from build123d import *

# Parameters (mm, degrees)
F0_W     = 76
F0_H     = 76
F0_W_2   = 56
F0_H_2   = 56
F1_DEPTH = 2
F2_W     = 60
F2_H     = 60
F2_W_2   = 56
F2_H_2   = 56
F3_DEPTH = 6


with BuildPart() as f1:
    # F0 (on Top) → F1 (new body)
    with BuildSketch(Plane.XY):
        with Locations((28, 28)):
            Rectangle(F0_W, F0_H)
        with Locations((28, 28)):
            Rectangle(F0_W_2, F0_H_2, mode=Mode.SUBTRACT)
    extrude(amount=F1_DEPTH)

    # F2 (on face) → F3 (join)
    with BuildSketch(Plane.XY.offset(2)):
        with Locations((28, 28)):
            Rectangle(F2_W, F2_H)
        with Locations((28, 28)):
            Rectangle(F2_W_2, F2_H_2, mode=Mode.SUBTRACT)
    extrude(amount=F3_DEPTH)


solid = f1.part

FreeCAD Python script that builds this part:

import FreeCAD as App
import Part
import Sketcher

doc = App.newDocument("Part")
body = doc.addObject("PartDesign::Body", "Body")

sketch1 = body.newObject("Sketcher::SketchObject", "Sketch")
sketch1.AttachmentSupport = (doc.getObject("XY_Plane"), [""])
sketch1.MapMode = "FlatFace"
sketch1.addGeometry([
    Part.LineSegment(App.Vector(-10, 66, 0), App.Vector(-10, -10, 0)),
    Part.LineSegment(App.Vector(-10, -10, 0), App.Vector(66, -10, 0)),
    Part.LineSegment(App.Vector(66, -10, 0), App.Vector(66, 66, 0)),
    Part.LineSegment(App.Vector(66, 66, 0), App.Vector(-10, 66, 0)),
    Part.LineSegment(App.Vector(56, 0, 0), App.Vector(0, 0, 0)),
    Part.LineSegment(App.Vector(0, 0, 0), App.Vector(0, 56, 0)),
    Part.LineSegment(App.Vector(0, 56, 0), App.Vector(56, 56, 0)),
    Part.LineSegment(App.Vector(56, 56, 0), App.Vector(56, 0, 0)),
], False)
sketch1.addConstraint([
    Sketcher.Constraint("Coincident", 0, 2, 1, 1),
    Sketcher.Constraint("Coincident", 1, 2, 2, 1),
    Sketcher.Constraint("Coincident", 2, 2, 3, 1),
    Sketcher.Constraint("Coincident", 3, 2, 0, 1),
    Sketcher.Constraint("Coincident", 4, 2, 5, 1),
    Sketcher.Constraint("Coincident", 5, 2, 6, 1),
    Sketcher.Constraint("Coincident", 6, 2, 7, 1),
    Sketcher.Constraint("Coincident", 7, 2, 4, 1),
    Sketcher.Constraint("Vertical", 0),
    Sketcher.Constraint("Horizontal", 1),
    Sketcher.Constraint("Vertical", 2),
    Sketcher.Constraint("Horizontal", 3),
    Sketcher.Constraint("Horizontal", 4),
    Sketcher.Constraint("Vertical", 5),
    Sketcher.Constraint("Horizontal", 6),
    Sketcher.Constraint("Vertical", 7),
    Sketcher.Constraint("Coincident", 4, 2, -1, 1),
    Sketcher.Constraint("Equal", 3, 0),
    Sketcher.Constraint("Equal", 6, 5),
    Sketcher.Constraint("DistanceX", 1, 1, 1, 2, 76.0),
    Sketcher.Constraint("DistanceX", 4, 2, 4, 1, 56.0),
    Sketcher.Constraint("DistanceX", 0, 2, -1, 1, 10.0),
    Sketcher.Constraint("DistanceY", 0, 2, -1, 1, 10.0),
])
pad1 = body.newObject("PartDesign::Pad", "Pad")
pad1.Profile = sketch1
pad1.Length = 2

sketch2 = body.newObject("Sketcher::SketchObject", "Sketch001")
sketch2.AttachmentSupport = (doc.getObject("XY_Plane"), [""])
sketch2.MapMode = "FlatFace"
sketch2.AttachmentOffset = App.Placement(App.Vector(0, 0, 2), App.Rotation())
sketch2.addGeometry([
    Part.LineSegment(App.Vector(-2, 58, 0), App.Vector(-2, -2, 0)),
    Part.LineSegment(App.Vector(-2, -2, 0), App.Vector(58, -2, 0)),
    Part.LineSegment(App.Vector(58, -2, 0), App.Vector(58, 58, 0)),
    Part.LineSegment(App.Vector(58, 58, 0), App.Vector(-2, 58, 0)),
    Part.LineSegment(App.Vector(56, 0, 0), App.Vector(0, 0, 0)),
    Part.LineSegment(App.Vector(0, 0, 0), App.Vector(0, 56, 0)),
    Part.LineSegment(App.Vector(0, 56, 0), App.Vector(56, 56, 0)),
    Part.LineSegment(App.Vector(56, 56, 0), App.Vector(56, 0, 0)),
], False)
sketch2.addConstraint([
    Sketcher.Constraint("Coincident", 0, 2, 1, 1),
    Sketcher.Constraint("Coincident", 1, 2, 2, 1),
    Sketcher.Constraint("Coincident", 2, 2, 3, 1),
    Sketcher.Constraint("Coincident", 3, 2, 0, 1),
    Sketcher.Constraint("Coincident", 4, 2, 5, 1),
    Sketcher.Constraint("Coincident", 5, 2, 6, 1),
    Sketcher.Constraint("Coincident", 6, 2, 7, 1),
    Sketcher.Constraint("Coincident", 7, 2, 4, 1),
    Sketcher.Constraint("Vertical", 0),
    Sketcher.Constraint("Horizontal", 1),
    Sketcher.Constraint("Vertical", 2),
    Sketcher.Constraint("Horizontal", 3),
    Sketcher.Constraint("Horizontal", 4),
    Sketcher.Constraint("Vertical", 5),
    Sketcher.Constraint("Horizontal", 6),
    Sketcher.Constraint("Vertical", 7),
    Sketcher.Constraint("Coincident", 4, 2, -1, 1),
    Sketcher.Constraint("Equal", 3, 0),
    Sketcher.Constraint("Equal", 6, 5),
    Sketcher.Constraint("DistanceX", 1, 1, 1, 2, 60.0),
    Sketcher.Constraint("DistanceX", 4, 2, 4, 1, 56.0),
    Sketcher.Constraint("DistanceX", 0, 2, -1, 1, 2.0),
    Sketcher.Constraint("DistanceY", 0, 2, -1, 1, 2.0),
])
pad2 = body.newObject("PartDesign::Pad", "Pad001")
pad2.Profile = sketch2
pad2.Length = 6

doc.recompute()
